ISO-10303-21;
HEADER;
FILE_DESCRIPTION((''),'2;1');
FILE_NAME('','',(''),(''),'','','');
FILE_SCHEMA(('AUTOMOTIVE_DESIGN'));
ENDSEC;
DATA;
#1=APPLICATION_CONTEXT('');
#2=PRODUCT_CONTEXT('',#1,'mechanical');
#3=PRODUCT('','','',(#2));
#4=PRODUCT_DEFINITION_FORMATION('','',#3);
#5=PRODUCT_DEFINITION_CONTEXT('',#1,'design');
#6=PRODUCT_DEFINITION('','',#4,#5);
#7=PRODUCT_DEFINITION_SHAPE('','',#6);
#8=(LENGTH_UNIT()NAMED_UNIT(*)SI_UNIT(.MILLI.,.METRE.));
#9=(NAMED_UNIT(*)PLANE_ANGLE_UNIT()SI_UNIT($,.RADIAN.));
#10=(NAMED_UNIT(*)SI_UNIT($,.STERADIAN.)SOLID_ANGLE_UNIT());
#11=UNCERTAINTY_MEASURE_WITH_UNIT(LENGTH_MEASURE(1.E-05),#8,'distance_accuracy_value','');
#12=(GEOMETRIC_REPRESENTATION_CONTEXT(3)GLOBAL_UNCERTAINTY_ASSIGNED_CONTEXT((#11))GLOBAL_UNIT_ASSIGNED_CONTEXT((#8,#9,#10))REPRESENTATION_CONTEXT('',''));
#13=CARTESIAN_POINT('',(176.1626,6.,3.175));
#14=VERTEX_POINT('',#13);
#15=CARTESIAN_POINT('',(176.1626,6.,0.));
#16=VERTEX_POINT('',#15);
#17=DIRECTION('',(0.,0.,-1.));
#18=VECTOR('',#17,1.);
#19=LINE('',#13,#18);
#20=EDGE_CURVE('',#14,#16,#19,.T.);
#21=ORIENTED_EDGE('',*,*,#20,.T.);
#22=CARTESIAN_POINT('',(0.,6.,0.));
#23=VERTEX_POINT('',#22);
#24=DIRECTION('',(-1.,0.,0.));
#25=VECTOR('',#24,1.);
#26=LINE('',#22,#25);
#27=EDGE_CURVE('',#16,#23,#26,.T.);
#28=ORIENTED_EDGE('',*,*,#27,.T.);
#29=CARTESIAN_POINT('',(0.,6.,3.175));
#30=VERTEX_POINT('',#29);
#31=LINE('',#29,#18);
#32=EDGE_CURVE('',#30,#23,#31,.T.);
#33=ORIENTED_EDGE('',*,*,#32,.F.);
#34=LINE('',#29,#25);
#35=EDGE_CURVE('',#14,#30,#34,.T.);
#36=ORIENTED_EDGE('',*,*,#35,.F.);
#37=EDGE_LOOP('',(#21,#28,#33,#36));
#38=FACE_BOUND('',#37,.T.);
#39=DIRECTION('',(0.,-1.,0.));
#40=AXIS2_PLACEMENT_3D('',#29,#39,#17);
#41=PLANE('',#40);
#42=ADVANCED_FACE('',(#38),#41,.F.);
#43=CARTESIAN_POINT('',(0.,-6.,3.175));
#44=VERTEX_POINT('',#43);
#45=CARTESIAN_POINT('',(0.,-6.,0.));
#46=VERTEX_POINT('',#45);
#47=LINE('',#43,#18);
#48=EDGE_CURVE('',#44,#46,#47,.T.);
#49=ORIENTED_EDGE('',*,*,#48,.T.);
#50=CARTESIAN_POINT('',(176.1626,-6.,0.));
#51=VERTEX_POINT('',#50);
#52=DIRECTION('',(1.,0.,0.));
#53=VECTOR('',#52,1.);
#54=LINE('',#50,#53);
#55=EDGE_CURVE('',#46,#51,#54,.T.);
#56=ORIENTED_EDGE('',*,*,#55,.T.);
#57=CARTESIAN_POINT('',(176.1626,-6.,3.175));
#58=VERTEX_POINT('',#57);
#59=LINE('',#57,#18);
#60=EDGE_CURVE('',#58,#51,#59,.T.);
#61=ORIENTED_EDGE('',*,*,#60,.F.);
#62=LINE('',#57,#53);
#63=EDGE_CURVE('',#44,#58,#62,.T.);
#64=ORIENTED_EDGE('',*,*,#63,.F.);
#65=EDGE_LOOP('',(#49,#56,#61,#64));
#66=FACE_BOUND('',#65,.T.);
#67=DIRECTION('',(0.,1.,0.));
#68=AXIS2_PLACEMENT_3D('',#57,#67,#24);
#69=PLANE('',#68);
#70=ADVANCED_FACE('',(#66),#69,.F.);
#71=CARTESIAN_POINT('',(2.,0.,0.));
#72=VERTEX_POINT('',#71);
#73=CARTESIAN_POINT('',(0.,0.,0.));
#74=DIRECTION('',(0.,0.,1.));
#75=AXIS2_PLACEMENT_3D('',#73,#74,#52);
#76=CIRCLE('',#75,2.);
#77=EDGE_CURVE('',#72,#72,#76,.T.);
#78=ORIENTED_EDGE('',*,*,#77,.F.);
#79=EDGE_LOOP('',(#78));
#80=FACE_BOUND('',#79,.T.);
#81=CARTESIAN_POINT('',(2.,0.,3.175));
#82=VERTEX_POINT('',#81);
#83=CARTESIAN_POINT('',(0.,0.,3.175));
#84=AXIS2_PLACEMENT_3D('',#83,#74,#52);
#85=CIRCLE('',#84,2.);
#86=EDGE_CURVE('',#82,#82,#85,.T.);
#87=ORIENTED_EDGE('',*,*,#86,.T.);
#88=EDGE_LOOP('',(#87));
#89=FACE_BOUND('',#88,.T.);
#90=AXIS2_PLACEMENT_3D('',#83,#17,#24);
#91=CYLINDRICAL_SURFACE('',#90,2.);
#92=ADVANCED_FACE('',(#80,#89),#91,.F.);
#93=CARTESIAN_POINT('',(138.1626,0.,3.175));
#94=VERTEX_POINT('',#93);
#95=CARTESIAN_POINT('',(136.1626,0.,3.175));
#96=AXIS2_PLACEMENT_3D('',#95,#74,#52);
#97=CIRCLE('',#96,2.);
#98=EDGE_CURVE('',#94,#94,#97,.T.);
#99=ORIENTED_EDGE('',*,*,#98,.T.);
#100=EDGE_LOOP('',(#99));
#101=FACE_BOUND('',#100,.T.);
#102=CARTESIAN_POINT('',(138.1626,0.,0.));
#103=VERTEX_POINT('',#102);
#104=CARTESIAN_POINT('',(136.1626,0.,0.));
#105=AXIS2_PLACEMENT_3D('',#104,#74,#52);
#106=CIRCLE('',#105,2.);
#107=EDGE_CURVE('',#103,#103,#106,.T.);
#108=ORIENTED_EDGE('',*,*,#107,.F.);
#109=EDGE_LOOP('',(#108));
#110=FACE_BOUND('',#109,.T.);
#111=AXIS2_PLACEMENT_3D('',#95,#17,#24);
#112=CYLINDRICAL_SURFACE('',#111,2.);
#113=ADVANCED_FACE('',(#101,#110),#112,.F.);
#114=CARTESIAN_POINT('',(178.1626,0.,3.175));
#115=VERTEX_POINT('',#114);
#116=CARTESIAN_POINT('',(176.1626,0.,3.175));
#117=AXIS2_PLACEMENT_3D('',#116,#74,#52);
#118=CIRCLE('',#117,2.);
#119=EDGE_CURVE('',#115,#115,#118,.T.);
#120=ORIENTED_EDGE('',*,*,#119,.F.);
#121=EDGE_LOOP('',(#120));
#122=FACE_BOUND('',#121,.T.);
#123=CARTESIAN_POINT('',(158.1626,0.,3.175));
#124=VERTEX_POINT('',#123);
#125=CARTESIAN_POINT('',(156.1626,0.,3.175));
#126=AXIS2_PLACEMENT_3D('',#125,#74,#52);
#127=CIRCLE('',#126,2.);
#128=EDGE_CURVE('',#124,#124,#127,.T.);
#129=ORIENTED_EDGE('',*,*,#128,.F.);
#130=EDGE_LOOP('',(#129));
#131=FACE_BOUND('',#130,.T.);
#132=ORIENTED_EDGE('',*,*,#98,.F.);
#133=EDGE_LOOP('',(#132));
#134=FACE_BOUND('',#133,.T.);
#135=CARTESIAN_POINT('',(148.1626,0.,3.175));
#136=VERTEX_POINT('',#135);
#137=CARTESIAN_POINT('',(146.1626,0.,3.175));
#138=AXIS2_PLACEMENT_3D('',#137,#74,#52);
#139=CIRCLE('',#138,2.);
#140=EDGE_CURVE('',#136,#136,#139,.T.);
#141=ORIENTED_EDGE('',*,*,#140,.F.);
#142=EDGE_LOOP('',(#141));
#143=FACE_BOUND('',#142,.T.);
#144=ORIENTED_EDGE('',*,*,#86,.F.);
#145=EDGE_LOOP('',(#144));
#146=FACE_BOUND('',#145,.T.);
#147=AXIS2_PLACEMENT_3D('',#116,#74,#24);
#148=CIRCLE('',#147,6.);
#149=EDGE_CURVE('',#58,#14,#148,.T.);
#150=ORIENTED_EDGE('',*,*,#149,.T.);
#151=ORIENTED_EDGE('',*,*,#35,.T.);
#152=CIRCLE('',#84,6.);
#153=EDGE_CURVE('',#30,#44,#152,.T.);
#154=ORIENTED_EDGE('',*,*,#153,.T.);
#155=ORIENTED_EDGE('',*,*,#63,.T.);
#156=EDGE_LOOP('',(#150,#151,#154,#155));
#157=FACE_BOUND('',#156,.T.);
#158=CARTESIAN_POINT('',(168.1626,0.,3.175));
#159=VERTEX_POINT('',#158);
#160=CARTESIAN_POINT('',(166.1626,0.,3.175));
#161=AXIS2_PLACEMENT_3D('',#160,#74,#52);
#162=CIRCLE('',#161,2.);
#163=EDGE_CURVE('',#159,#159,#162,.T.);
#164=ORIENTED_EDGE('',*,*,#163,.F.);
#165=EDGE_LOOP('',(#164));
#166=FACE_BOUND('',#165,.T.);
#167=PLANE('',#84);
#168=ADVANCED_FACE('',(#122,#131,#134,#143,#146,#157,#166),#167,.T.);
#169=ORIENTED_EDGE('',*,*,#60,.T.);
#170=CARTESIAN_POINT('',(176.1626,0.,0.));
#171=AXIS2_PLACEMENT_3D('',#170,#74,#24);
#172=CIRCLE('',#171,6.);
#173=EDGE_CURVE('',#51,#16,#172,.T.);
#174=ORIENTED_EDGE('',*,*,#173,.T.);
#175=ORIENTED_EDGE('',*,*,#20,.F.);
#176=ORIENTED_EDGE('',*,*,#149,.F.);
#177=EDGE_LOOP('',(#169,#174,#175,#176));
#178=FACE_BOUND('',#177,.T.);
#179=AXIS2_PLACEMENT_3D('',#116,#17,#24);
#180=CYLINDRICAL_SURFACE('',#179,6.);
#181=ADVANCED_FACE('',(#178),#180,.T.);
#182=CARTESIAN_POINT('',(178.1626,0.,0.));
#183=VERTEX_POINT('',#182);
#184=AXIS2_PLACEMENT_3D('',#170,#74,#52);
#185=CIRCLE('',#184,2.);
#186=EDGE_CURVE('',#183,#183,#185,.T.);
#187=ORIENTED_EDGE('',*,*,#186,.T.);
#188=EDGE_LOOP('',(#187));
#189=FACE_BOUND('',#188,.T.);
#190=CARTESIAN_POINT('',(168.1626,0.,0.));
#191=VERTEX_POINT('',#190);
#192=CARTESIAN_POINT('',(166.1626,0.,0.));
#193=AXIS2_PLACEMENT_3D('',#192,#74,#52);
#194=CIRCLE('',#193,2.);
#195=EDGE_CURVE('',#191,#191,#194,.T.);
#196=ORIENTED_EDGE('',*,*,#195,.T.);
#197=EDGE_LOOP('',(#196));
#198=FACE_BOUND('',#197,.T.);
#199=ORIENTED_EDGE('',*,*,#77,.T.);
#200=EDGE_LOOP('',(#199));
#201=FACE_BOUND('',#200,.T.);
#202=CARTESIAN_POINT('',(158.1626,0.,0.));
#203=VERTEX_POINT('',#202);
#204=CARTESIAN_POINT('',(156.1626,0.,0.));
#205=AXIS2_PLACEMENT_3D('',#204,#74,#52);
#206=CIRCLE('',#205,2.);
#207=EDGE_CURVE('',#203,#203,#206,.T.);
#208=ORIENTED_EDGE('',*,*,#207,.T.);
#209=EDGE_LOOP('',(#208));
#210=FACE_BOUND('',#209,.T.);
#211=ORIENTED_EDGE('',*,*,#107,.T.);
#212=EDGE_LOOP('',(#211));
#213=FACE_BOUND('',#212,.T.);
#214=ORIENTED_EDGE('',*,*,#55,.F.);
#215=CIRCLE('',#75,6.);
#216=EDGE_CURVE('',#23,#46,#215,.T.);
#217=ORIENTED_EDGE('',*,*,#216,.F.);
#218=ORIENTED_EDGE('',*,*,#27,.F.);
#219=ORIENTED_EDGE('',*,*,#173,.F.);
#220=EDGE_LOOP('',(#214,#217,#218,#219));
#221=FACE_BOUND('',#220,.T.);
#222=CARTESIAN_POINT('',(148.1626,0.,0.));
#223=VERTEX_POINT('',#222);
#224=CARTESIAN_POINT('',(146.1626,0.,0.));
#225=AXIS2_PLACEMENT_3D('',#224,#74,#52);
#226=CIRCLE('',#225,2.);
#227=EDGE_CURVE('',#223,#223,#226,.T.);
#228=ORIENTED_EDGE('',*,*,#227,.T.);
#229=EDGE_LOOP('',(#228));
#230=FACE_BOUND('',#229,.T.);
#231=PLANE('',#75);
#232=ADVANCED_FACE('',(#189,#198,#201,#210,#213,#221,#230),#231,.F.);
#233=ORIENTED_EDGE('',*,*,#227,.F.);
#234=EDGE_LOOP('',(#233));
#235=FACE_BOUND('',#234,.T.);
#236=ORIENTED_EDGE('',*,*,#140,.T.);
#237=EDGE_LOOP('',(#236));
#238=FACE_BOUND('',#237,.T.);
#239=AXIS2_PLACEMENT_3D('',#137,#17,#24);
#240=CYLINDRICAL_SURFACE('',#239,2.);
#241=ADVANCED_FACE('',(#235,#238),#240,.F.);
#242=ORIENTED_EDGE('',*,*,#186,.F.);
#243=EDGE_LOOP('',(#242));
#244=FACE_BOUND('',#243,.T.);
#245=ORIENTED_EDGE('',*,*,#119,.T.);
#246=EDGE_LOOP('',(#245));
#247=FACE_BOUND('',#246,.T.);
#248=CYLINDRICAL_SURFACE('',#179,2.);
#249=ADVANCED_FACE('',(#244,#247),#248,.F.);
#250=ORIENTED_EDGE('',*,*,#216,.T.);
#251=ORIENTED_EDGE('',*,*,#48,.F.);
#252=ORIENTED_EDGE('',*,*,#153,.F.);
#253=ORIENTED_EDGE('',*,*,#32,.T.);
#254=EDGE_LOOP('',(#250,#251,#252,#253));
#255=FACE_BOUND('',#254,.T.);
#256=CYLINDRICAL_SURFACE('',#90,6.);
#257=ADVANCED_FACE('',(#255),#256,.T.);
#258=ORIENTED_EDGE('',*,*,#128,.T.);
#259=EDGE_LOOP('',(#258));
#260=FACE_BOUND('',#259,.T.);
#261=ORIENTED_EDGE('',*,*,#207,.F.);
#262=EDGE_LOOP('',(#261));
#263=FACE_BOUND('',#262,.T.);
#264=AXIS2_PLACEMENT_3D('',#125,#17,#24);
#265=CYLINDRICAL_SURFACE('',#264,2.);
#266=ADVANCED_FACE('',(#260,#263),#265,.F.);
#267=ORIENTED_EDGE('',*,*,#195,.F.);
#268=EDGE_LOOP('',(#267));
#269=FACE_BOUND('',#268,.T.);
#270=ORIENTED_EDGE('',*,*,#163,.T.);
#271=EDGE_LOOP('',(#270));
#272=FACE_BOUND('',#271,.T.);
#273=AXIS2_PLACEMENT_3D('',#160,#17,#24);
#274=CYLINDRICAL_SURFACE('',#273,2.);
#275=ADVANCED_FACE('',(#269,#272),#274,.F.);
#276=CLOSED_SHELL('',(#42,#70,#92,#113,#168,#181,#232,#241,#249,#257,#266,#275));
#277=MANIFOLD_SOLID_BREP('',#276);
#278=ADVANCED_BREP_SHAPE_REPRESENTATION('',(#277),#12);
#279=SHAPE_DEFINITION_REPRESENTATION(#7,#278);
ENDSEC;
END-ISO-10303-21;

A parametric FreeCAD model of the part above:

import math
import FreeCAD as App
import Part
import Sketcher

V = App.Vector

doc = App.newDocument("Part")
params = doc.addObject("Spreadsheet::Sheet", "Params")
for row, (alias, value) in enumerate([
    ("sketch1_diameter", "4 mm"),
    ("sketch1_radius", "6 mm"),
    ("pad1_length", "3.175 mm"),
], start=1):
    params.set(f"A{row}", alias)
    params.set(f"B{row}", "=" + value)
    params.setAlias(f"B{row}", alias)

body = doc.addObject("PartDesign::Body", "Body")

sketch1 = doc.addObject("Sketcher::SketchObject", "Sketch")
body.addObject(sketch1)
sketch1.AttachmentSupport = (doc.XY_Plane, [""])
sketch1.MapMode = "FlatFace"
sketch1.addGeometry(Part.LineSegment(V(176.2, 6, 0), V(0, 6, 0)), False)
sketch1.addGeometry(Part.ArcOfCircle(Part.Circle(V(0, 0, 0), V(0, 0, 1), 6), math.radians(90), math.radians(270)), False)
sketch1.addGeometry(Part.LineSegment(V(0, -6, 0), V(176.2, -6, 0)), False)
sketch1.addGeometry(Part.ArcOfCircle(Part.Circle(V(176.2, 0, 0), V(0, 0, 1), 6), math.radians(-90), math.radians(90)), False)
sketch1.addGeometry(Part.Circle(V(176.2, 0, 0), V(0, 0, 1), 2), False)
sketch1.addGeometry(Part.Circle(V(166.2, 0, 0), V(0, 0, 1), 2), False)
sketch1.addGeometry(Part.Circle(V(156.2, 0, 0), V(0, 0, 1), 2), False)
sketch1.addGeometry(Part.Circle(V(146.2, 0, 0), V(0, 0, 1), 2), False)
sketch1.addGeometry(Part.Circle(V(136.2, 0, 0), V(0, 0, 1), 2), False)
sketch1.addGeometry(Part.Circle(V(0, 0, 0), V(0, 0, 1), 2), False)
sketch1.addConstraint(Sketcher.Constraint("Tangent", 0, 2, 1, 1))
sketch1.addConstraint(Sketcher.Constraint("Tangent", 1, 2, 2, 1))
sketch1.addConstraint(Sketcher.Constraint("Tangent", 2, 2, 3, 1))
sketch1.addConstraint(Sketcher.Constraint("Tangent", 3, 2, 0, 1))
sketch1.addConstraint(Sketcher.Constraint("Horizontal", 0))
sketch1.addConstraint(Sketcher.Constraint("Horizontal", 2))
sketch1.addConstraint(Sketcher.Constraint("Coincident", 1, 3, -1, 1))
sketch1.addConstraint(Sketcher.Constraint("Coincident", 9, 3, -1, 1))
sketch1.addConstraint(Sketcher.Constraint("Coincident", 4, 3, 3, 3))
sketch1.addConstraint(Sketcher.Constraint("Equal", 4, 5))
sketch1.addConstraint(Sketcher.Constraint("Equal", 5, 6))
sketch1.addConstraint(Sketcher.Constraint("Equal", 6, 7))
sketch1.addConstraint(Sketcher.Constraint("Equal", 7, 8))
sketch1.addConstraint(Sketcher.Constraint("Equal", 8, 9))
sketch1.addConstraint(Sketcher.Constraint("PointOnObject", 5, 3, -1))
sketch1.addConstraint(Sketcher.Constraint("PointOnObject", 6, 3, -1))
sketch1.addConstraint(Sketcher.Constraint("PointOnObject", 7, 3, -1))
sketch1.addConstraint(Sketcher.Constraint("PointOnObject", 8, 3, -1))
sketch1.addConstraint(Sketcher.Constraint("Diameter", 4, 4.0))
sketch1.addConstraint(Sketcher.Constraint("Radius", 1, 6.0))
sketch1.addConstraint(Sketcher.Constraint("DistanceX", 5, 3, 3, 3, 10.0))
sketch1.addConstraint(Sketcher.Constraint("DistanceX", 6, 3, 5, 3, 10.0))
sketch1.addConstraint(Sketcher.Constraint("DistanceX", 7, 3, 6, 3, 10.0))
sketch1.addConstraint(Sketcher.Constraint("DistanceX", 8, 3, 7, 3, 10.0))
sketch1.addConstraint(Sketcher.Constraint("DistanceX", 0, 2, 0, 1, 176.1626))
sketch1.setExpression("Constraints[18]", "Params.sketch1_diameter")
sketch1.setExpression("Constraints[19]", "Params.sketch1_radius")
pad1 = doc.addObject("PartDesign::Pad", "Pad")
body.addObject(pad1)
pad1.Profile = sketch1
pad1.setExpression("Length", "Params.pad1_length")

doc.recompute()
